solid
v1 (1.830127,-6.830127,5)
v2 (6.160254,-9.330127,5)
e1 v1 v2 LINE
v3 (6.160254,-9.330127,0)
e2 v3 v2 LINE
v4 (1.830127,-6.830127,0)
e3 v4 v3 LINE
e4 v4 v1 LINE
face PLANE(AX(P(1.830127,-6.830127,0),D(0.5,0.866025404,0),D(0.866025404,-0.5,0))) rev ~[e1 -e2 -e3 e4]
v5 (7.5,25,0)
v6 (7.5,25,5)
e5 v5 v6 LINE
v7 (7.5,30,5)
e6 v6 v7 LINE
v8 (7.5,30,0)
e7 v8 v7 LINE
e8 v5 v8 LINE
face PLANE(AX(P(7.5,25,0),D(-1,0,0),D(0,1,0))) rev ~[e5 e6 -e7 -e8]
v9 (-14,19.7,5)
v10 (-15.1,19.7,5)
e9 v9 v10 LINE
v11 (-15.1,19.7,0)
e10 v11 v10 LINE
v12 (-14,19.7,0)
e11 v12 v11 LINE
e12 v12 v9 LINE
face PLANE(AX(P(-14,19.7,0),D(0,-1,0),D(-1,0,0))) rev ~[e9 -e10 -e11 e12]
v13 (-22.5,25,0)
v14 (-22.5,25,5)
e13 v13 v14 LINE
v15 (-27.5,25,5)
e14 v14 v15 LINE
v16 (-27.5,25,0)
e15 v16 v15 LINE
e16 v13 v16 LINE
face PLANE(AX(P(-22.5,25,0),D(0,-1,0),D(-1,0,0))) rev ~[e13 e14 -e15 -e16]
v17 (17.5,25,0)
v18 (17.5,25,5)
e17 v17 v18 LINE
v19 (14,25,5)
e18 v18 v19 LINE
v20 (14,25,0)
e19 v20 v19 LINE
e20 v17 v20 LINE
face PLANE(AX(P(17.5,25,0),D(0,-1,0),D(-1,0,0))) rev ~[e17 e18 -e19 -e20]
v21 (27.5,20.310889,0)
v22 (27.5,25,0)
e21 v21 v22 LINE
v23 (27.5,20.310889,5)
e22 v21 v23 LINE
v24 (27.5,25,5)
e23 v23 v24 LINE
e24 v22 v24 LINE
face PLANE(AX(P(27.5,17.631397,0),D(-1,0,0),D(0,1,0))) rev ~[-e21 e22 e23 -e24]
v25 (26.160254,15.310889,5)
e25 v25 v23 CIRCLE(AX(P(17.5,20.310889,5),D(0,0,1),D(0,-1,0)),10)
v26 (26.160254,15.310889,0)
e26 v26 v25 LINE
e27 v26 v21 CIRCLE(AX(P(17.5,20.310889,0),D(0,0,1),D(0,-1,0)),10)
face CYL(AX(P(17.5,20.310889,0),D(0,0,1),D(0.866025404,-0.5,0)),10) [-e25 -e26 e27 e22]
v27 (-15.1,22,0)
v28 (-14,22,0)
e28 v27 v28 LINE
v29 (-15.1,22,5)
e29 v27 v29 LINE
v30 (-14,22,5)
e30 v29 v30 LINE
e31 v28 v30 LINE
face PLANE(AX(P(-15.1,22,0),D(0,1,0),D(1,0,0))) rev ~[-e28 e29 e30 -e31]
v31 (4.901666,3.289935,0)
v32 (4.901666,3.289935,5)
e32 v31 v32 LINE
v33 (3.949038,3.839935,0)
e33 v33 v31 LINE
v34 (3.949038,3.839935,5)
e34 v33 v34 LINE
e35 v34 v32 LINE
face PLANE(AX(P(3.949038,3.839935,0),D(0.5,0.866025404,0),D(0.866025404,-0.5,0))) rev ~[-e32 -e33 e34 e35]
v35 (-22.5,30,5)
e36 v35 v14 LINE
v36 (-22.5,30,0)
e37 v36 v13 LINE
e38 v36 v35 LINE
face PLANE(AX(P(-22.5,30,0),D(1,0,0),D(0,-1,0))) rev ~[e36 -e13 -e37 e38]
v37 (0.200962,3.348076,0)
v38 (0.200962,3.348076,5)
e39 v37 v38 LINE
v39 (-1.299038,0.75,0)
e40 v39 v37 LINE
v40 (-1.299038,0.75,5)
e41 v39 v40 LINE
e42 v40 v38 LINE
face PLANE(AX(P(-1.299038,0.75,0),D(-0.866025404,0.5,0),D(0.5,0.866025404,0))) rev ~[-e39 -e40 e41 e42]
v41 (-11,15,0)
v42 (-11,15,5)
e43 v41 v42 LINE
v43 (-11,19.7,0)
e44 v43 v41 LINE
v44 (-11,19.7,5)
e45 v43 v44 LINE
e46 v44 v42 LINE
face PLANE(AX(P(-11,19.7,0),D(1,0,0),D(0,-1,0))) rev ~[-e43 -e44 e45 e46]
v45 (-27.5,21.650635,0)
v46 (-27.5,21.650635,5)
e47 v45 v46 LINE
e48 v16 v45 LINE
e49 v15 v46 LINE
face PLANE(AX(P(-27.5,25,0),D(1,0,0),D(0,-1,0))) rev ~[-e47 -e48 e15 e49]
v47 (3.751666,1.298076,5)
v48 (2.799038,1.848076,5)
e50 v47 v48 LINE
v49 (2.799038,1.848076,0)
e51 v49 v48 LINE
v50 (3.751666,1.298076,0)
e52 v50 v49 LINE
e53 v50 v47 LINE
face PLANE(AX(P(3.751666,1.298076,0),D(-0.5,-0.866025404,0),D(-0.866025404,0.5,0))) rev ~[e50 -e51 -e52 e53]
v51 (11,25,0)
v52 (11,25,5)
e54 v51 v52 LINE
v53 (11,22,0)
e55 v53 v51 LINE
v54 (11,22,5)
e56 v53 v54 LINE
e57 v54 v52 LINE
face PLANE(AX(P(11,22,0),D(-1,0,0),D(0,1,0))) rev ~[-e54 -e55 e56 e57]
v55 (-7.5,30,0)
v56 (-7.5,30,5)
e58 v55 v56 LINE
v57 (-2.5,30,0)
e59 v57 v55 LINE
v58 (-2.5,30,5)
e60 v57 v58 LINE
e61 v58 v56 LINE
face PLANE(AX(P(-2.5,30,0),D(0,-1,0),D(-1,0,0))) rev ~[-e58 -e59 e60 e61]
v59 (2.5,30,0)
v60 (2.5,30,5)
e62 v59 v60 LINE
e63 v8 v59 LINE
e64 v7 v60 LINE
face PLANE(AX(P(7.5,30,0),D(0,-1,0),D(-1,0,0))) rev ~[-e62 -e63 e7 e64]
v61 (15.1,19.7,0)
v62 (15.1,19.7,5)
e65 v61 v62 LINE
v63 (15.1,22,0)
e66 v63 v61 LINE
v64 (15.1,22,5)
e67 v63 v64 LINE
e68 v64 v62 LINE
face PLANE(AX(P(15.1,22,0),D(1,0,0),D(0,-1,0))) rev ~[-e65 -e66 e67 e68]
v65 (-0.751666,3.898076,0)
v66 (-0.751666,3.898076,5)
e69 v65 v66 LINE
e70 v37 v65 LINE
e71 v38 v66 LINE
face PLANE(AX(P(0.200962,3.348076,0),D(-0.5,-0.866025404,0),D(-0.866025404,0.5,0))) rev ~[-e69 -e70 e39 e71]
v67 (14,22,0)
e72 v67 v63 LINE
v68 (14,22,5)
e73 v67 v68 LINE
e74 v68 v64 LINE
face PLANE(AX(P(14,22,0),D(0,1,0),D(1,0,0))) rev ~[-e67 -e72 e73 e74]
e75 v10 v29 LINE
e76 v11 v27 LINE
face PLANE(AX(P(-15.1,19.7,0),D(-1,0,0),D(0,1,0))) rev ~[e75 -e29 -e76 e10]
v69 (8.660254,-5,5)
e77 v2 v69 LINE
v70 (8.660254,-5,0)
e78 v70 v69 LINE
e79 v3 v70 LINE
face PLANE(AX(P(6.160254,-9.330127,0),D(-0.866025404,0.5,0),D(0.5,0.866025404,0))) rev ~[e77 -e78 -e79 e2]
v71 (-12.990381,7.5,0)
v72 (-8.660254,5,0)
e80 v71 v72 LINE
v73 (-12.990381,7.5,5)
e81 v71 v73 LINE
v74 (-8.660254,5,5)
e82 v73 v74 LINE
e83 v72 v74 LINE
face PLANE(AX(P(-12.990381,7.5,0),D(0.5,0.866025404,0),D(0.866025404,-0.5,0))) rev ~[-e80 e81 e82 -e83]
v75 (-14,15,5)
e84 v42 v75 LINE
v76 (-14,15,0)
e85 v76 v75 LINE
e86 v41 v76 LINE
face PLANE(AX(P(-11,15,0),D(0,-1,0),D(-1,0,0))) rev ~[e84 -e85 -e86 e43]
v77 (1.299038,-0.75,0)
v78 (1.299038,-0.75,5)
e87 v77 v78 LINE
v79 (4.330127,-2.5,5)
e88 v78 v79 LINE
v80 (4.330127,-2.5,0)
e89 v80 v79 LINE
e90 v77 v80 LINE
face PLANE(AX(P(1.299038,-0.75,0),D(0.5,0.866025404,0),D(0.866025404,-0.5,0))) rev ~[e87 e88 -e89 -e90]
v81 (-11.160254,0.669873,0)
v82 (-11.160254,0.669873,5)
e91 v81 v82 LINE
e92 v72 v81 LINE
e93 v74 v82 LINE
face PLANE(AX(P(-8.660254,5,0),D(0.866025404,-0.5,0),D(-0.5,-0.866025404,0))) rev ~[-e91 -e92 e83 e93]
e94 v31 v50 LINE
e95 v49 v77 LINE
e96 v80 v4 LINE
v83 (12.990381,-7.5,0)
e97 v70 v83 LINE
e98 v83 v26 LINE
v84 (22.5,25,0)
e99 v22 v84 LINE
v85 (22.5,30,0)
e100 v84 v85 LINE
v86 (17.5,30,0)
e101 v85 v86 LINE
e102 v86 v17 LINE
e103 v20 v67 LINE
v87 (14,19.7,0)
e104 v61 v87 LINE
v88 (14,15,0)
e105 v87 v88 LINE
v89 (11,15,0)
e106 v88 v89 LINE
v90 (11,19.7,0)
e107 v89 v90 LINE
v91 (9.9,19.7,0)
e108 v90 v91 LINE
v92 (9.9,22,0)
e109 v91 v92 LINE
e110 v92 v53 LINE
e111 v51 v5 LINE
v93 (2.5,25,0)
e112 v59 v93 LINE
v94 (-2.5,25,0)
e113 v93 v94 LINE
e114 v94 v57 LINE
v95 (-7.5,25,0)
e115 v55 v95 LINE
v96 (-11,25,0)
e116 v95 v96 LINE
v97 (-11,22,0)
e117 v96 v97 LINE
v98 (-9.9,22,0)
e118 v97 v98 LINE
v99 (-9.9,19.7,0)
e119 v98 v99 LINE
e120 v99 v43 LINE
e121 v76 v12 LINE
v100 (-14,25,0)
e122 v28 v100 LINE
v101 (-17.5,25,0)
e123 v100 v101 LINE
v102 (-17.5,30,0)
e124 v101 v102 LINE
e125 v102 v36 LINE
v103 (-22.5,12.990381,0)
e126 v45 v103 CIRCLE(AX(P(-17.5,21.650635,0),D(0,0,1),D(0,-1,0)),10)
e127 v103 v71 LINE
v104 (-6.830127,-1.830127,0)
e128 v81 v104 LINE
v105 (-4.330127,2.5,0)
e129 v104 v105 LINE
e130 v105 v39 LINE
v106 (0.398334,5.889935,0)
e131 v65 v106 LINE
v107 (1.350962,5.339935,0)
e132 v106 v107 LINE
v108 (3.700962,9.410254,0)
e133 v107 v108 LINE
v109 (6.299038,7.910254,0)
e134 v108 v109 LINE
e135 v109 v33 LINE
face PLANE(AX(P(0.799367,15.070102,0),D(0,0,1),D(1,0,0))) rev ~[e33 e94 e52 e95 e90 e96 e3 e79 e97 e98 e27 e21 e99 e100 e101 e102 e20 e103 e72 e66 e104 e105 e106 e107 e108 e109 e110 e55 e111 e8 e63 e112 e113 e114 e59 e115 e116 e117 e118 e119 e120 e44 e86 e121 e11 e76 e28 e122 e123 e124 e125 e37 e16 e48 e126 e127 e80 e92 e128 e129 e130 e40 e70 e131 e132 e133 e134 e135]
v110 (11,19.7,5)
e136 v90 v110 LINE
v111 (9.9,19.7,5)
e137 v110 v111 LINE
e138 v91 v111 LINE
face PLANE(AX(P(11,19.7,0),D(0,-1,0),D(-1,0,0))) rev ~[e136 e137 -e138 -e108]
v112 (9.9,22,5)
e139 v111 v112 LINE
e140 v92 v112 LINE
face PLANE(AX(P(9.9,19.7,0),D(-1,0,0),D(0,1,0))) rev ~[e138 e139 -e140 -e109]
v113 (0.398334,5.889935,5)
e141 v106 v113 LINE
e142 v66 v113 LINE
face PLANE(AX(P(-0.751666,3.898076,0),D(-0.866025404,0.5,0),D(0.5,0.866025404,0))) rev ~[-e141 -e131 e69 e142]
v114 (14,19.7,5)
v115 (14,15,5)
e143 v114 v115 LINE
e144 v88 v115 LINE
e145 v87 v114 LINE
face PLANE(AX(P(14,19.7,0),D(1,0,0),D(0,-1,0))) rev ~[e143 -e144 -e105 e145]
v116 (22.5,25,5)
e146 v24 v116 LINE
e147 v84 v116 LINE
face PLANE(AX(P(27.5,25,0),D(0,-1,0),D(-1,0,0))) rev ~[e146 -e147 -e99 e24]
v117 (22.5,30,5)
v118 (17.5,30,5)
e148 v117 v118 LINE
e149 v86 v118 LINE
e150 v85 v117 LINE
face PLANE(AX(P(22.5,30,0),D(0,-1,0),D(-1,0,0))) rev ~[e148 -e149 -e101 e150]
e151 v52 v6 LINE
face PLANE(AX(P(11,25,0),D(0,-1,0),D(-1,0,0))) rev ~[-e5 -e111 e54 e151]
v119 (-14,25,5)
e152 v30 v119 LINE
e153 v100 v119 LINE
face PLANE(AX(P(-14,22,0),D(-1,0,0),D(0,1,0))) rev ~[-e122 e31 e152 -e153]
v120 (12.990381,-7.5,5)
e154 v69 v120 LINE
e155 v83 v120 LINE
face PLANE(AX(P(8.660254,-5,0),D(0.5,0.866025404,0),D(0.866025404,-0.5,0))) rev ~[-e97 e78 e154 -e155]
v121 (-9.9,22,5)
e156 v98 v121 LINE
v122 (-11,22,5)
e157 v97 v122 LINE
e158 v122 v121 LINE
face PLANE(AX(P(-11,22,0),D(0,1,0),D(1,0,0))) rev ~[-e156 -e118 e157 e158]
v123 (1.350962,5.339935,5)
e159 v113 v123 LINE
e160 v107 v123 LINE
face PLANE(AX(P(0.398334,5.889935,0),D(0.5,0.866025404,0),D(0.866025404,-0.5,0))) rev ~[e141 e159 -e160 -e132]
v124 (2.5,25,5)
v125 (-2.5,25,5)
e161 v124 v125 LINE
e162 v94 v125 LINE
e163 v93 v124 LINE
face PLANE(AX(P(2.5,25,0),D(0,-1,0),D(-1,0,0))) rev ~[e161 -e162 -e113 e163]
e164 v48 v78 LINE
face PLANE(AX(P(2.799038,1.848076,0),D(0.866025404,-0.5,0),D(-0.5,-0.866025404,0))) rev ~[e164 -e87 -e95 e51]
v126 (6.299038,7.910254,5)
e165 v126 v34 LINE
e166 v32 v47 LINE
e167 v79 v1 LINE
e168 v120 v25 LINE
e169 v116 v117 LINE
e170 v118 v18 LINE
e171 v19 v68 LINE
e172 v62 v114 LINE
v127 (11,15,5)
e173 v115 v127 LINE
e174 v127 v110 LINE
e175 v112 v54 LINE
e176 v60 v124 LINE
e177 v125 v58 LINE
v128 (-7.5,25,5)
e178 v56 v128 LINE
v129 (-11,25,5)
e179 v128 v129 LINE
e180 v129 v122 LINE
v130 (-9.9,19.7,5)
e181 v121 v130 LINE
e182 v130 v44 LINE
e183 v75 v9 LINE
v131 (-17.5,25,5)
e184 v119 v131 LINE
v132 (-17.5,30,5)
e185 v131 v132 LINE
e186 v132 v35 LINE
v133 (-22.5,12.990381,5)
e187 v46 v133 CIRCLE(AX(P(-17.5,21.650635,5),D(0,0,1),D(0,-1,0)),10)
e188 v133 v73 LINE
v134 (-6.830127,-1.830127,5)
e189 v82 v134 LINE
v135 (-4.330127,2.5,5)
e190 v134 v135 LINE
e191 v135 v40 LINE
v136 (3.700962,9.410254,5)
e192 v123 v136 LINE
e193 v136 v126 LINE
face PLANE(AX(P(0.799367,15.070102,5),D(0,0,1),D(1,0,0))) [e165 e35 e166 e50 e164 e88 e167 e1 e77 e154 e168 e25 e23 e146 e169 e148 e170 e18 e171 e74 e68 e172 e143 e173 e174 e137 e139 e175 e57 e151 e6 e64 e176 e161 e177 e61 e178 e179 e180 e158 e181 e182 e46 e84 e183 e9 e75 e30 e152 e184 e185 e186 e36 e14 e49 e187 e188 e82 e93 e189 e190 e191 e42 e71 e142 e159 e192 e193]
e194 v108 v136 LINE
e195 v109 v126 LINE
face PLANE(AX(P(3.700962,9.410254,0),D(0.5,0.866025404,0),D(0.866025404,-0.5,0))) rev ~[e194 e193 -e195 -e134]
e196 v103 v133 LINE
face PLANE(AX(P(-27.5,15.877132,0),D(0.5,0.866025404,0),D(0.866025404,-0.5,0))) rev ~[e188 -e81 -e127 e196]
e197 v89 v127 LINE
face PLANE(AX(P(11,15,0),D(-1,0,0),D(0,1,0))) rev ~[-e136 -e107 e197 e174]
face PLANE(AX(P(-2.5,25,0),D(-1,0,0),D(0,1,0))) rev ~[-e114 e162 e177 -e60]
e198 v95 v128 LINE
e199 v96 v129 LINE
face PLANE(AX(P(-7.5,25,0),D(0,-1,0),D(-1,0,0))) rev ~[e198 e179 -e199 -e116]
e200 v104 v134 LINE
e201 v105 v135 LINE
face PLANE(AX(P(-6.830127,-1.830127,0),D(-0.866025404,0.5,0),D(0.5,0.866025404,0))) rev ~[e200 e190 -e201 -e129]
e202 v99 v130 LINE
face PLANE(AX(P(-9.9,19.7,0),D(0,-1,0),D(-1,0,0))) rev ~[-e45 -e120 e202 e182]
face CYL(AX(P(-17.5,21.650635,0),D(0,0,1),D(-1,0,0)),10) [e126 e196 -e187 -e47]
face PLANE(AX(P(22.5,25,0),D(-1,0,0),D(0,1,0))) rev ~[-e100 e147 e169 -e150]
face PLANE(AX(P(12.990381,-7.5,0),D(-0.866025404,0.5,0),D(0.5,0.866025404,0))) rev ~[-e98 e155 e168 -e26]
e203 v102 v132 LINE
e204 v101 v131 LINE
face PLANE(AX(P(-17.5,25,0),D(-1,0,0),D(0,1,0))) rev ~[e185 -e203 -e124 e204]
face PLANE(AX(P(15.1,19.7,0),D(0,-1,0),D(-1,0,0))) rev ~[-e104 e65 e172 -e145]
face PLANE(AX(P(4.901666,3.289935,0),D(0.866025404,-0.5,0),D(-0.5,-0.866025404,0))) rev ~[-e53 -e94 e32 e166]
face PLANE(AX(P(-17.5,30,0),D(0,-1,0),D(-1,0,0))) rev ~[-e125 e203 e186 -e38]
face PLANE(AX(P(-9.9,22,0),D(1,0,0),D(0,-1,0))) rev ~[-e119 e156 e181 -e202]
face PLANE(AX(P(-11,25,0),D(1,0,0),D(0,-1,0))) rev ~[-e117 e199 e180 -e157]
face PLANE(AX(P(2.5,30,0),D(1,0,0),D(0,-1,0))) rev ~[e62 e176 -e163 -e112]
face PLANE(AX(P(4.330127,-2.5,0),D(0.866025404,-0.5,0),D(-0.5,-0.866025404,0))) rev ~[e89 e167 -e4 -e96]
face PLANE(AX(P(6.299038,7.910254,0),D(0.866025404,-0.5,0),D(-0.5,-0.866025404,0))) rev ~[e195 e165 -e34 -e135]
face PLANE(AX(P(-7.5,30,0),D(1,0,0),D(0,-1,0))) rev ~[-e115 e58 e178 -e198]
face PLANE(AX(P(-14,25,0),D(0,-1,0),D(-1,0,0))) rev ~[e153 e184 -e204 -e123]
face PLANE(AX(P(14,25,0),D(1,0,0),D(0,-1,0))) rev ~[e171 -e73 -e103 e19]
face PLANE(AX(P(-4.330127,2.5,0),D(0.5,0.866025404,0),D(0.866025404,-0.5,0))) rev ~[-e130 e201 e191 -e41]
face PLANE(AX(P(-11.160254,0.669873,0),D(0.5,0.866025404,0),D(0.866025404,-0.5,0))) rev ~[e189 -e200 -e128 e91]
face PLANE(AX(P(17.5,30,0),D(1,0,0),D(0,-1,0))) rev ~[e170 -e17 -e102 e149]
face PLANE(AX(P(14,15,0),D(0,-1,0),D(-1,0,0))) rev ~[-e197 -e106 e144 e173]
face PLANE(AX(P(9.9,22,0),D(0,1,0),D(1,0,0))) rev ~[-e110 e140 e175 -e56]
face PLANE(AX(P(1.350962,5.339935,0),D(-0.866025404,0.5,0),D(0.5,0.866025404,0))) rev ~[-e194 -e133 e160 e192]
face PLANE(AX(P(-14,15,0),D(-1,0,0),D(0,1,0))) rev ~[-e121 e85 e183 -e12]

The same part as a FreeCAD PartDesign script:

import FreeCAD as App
import Part
import Sketcher
from FreeCAD import Vector
Q = App.Units.Quantity


def edges_at(feature, points):
    """Names of the edges that pass closest to the given points."""
    edges = feature.Shape.Edges
    near = lambda p: min(range(len(edges)), key=lambda i: edges[i].distToShape(Part.Vertex(*p))[0])
    return sorted({f"Edge{near(p) + 1}" for p in points})


def add_polygon(sketch, points):
    """Adds a closed chain of lines whose ends are joined by coincident constraints."""
    first, n = sketch.GeometryCount, len(points)
    for a, b in zip(points, points[1:] + points[:1]):
        sketch.addGeometry(Part.LineSegment(App.Vector(*a, 0), App.Vector(*b, 0)), False)
    for i in range(n):
        sketch.addConstraint(Sketcher.Constraint("Coincident", first + i, 2, first + (i + 1) % n, 1))

doc = App.newDocument("Part")
body = doc.addObject("PartDesign::Body", "Body")

# Sketch on XY plane
sketch1 = body.newObject("Sketcher::SketchObject", "Sketch")
sketch1.AttachmentSupport = (doc.getObject("XY_Plane"), [""])
sketch1.MapMode = "FlatFace"
add_polygon(sketch1, [(-12.990381, 7.5), (-8.660254, 5), (-11.160254, 0.669873), (-6.830127, -1.830127), (-4.330127, 2.5), (-1.299038, 0.75), (0.200962, 3.348076), (-0.751666, 3.898076), (0.398334, 5.889935), (1.350962, 5.339935), (3.700962, 9.410254), (6.299038, 7.910254), (3.949038, 3.839935), (4.901666, 3.289935), (3.751666, 1.298076), (2.799038, 1.848076), (1.299038, -0.75), (4.330127, -2.5), (1.830127, -6.830127), (6.160254, -9.330127), (8.660254, -5), (12.990381, -7.5), (27.5, 17.631397), (27.5, 25), (22.5, 25), (22.5, 30), (17.5, 30), (17.5, 25), (14, 25), (14, 22), (15.1, 22), (15.1, 19.7), (14, 19.7), (14, 15), (11, 15), (11, 19.7), (9.9, 19.7), (9.9, 22), (11, 22), (11, 25), (7.5, 25), (7.5, 30), (2.5, 30), (2.5, 25), (-2.5, 25), (-2.5, 30), (-7.5, 30), (-7.5, 25), (-11, 25), (-11, 22), (-9.9, 22), (-9.9, 19.7), (-11, 19.7), (-11, 15), (-14, 15), (-14, 19.7), (-15.1, 19.7), (-15.1, 22), (-14, 22), (-14, 25), (-17.5, 25), (-17.5, 30), (-22.5, 30), (-22.5, 25), (-27.5, 25), (-27.5, 15.877132)])  # lines 0-65
sketch1.addConstraint([
    Sketcher.Constraint("Vertical", 22),
    Sketcher.Constraint("Horizontal", 23),
    Sketcher.Constraint("Vertical", 24),
    Sketcher.Constraint("Horizontal", 25),
    Sketcher.Constraint("Vertical", 26),
    Sketcher.Constraint("Horizontal", 27),
    Sketcher.Constraint("Vertical", 28),
    Sketcher.Constraint("Horizontal", 29),
    Sketcher.Constraint("Vertical", 30),
    Sketcher.Constraint("Horizontal", 31),
    Sketcher.Constraint("Vertical", 32),
    Sketcher.Constraint("Horizontal", 33),
    Sketcher.Constraint("Vertical", 34),
    Sketcher.Constraint("Horizontal", 35),
    Sketcher.Constraint("Vertical", 36),
    Sketcher.Constraint("Horizontal", 37),
    Sketcher.Constraint("Vertical", 38),
    Sketcher.Constraint("Horizontal", 39),
    Sketcher.Constraint("Vertical", 40),
    Sketcher.Constraint("Horizontal", 41),
    Sketcher.Constraint("Vertical", 42),
    Sketcher.Constraint("Horizontal", 43),
    Sketcher.Constraint("Vertical", 44),
    Sketcher.Constraint("Horizontal", 45),
    Sketcher.Constraint("Vertical", 46),
    Sketcher.Constraint("Horizontal", 47),
    Sketcher.Constraint("Vertical", 48),
    Sketcher.Constraint("Horizontal", 49),
    Sketcher.Constraint("Vertical", 50),
    Sketcher.Constraint("Horizontal", 51),
    Sketcher.Constraint("Vertical", 52),
    Sketcher.Constraint("Horizontal", 53),
    Sketcher.Constraint("Vertical", 54),
    Sketcher.Constraint("Horizontal", 55),
    Sketcher.Constraint("Vertical", 56),
    Sketcher.Constraint("Horizontal", 57),
    Sketcher.Constraint("Vertical", 58),
    Sketcher.Constraint("Horizontal", 59),
    Sketcher.Constraint("Vertical", 60),
    Sketcher.Constraint("Horizontal", 61),
    Sketcher.Constraint("Vertical", 62),
    Sketcher.Constraint("Horizontal", 63),
    Sketcher.Constraint("Vertical", 64),
    Sketcher.Constraint("Symmetric", 4, 2, 15, 2, -1, 1),
    Sketcher.Constraint("Symmetric", 3, 2, 16, 2, -1, 1),
    Sketcher.Constraint("Symmetric", 0, 2, 19, 2, -1, 1),
    Sketcher.Constraint("Symmetric", 20, 2, 65, 2, -1, 1),
    Sketcher.Constraint("Symmetric", 41, 2, 44, 2, -2),
    Sketcher.Constraint("Symmetric", 39, 2, 46, 2, -2),
    Sketcher.Constraint("Symmetric", 37, 2, 48, 2, -2),
    Sketcher.Constraint("Symmetric", 35, 2, 50, 2, -2),
    Sketcher.Constraint("Symmetric", 33, 2, 52, 2, -2),
    Sketcher.Constraint("Symmetric", 31, 2, 54, 2, -2),
    Sketcher.Constraint("Symmetric", 29, 2, 56, 2, -2),
    Sketcher.Constraint("Symmetric", 27, 2, 58, 2, -2),
    Sketcher.Constraint("Symmetric", 25, 2, 60, 2, -2),
    Sketcher.Constraint("Symmetric", 23, 2, 62, 2, -2),
    Sketcher.Constraint("Perpendicular", 0, 1),
    Sketcher.Constraint("Perpendicular", 1, 2),
    Sketcher.Constraint("Perpendicular", 2, 3),
    Sketcher.Constraint("Perpendicular", 3, 4),
    Sketcher.Constraint("Perpendicular", 4, 5),
    Sketcher.Constraint("Perpendicular", 5, 6),
    Sketcher.Constraint("Perpendicular", 6, 7),
    Sketcher.Constraint("Perpendicular", 7, 8),
    Sketcher.Constraint("Perpendicular", 8, 9),
    Sketcher.Constraint("Perpendicular", 9, 10),
    Sketcher.Constraint("Perpendicular", 10, 11),
    Sketcher.Constraint("Perpendicular", 11, 12),
    Sketcher.Constraint("Perpendicular", 12, 13),
    Sketcher.Constraint("Perpendicular", 13, 14),
    Sketcher.Constraint("Perpendicular", 14, 15),
    Sketcher.Constraint("Perpendicular", 16, 17),
    Sketcher.Constraint("Perpendicular", 17, 18),
    Sketcher.Constraint("Perpendicular", 18, 19),
    Sketcher.Constraint("Perpendicular", 20, 21),
    Sketcher.Constraint("Perpendicular", 21, 65),
    Sketcher.Constraint("Horizontal", 23, 2, 26, 2),
    Sketcher.Constraint("Horizontal", 31, 2, 34, 2),
    Sketcher.Constraint("Horizontal", 29, 2, 36, 2),
    Sketcher.Constraint("Horizontal", 27, 2, 38, 2),
    Sketcher.Constraint("Horizontal", 25, 2, 40, 2),
    Sketcher.Constraint("Horizontal", 39, 2, 42, 2),
    Sketcher.Constraint("Vertical", 28, 2, 31, 2),
    Sketcher.Constraint("Vertical", 34, 2, 37, 2),
    Sketcher.Constraint("Equal", 23, 25),
    Sketcher.Constraint("Equal", 31, 35),
    Sketcher.Constraint("Equal", 27, 39),
    Sketcher.Constraint("Equal", 25, 41),
    Sketcher.Constraint("Equal", 41, 43),
    Sketcher.Constraint("Equal", 61, 63),
    Sketcher.Constraint("Equal", 63, 24),
    Sketcher.Constraint("Equal", 53, 28),
    Sketcher.Constraint("Equal", 0, 1),
    Sketcher.Constraint("Equal", 1, 2),
    Sketcher.Constraint("Equal", 2, 3),
    Sketcher.Constraint("Equal", 6, 8),
    Sketcher.Constraint("Equal", 5, 10),
    Sketcher.Constraint("Equal", 9, 11),
    Sketcher.Constraint("Equal", 8, 12),
    Sketcher.Constraint("Equal", 7, 13),
    Sketcher.Constraint("Equal", 12, 14),
    Sketcher.Constraint("Equal", 10, 15),
    Sketcher.Constraint("Equal", 3, 17),
    Sketcher.Constraint("DistanceX", 23, 2, 23, 1, Q("5 mm")),
    Sketcher.Constraint("DistanceX", 33, 2, 33, 1, Q("3 mm")),
    Sketcher.Constraint("Angle", 0, Q("-30 deg")),
    Sketcher.Constraint("Distance", 0, Q("5 mm")),
    Sketcher.Constraint("Distance", 5, Q("3 mm")),
    Sketcher.Constraint("DistanceX", 27, 2, 27, 1, Q("3.5 mm")),
    Sketcher.Constraint("DistanceX", 29, 1, 29, 2, Q("1.1 mm")),
    Sketcher.Constraint("DistanceY", 30, 2, 30, 1, Q("2.3 mm")),
    Sketcher.Constraint("DistanceY", 32, 2, 32, 1, Q("4.7 mm")),
    Sketcher.Constraint("DistanceY", -1, 1, 0, 2, Q("5 mm")),
    Sketcher.Constraint("DistanceY", -1, 1, 22, 2, Q("25 mm")),
    Sketcher.Constraint("Distance", 6, Q("1.1 mm")),
    Sketcher.Constraint("Distance", 7, Q("2.3 mm")),
    Sketcher.Constraint("Distance", 9, Q("4.7 mm")),
])
pad1 = body.newObject("PartDesign::Pad", "Pad")
pad1.Profile = sketch1
pad1.Length = 5
doc.recompute()

fillet = body.newObject("PartDesign::Fillet", "Fillet")
fillet.Base = (pad1, edges_at(pad1, [(27.5, 17.631, 2.5), (-27.5, 15.877, 2.5)]))
fillet.Radius = 10

doc.recompute()
